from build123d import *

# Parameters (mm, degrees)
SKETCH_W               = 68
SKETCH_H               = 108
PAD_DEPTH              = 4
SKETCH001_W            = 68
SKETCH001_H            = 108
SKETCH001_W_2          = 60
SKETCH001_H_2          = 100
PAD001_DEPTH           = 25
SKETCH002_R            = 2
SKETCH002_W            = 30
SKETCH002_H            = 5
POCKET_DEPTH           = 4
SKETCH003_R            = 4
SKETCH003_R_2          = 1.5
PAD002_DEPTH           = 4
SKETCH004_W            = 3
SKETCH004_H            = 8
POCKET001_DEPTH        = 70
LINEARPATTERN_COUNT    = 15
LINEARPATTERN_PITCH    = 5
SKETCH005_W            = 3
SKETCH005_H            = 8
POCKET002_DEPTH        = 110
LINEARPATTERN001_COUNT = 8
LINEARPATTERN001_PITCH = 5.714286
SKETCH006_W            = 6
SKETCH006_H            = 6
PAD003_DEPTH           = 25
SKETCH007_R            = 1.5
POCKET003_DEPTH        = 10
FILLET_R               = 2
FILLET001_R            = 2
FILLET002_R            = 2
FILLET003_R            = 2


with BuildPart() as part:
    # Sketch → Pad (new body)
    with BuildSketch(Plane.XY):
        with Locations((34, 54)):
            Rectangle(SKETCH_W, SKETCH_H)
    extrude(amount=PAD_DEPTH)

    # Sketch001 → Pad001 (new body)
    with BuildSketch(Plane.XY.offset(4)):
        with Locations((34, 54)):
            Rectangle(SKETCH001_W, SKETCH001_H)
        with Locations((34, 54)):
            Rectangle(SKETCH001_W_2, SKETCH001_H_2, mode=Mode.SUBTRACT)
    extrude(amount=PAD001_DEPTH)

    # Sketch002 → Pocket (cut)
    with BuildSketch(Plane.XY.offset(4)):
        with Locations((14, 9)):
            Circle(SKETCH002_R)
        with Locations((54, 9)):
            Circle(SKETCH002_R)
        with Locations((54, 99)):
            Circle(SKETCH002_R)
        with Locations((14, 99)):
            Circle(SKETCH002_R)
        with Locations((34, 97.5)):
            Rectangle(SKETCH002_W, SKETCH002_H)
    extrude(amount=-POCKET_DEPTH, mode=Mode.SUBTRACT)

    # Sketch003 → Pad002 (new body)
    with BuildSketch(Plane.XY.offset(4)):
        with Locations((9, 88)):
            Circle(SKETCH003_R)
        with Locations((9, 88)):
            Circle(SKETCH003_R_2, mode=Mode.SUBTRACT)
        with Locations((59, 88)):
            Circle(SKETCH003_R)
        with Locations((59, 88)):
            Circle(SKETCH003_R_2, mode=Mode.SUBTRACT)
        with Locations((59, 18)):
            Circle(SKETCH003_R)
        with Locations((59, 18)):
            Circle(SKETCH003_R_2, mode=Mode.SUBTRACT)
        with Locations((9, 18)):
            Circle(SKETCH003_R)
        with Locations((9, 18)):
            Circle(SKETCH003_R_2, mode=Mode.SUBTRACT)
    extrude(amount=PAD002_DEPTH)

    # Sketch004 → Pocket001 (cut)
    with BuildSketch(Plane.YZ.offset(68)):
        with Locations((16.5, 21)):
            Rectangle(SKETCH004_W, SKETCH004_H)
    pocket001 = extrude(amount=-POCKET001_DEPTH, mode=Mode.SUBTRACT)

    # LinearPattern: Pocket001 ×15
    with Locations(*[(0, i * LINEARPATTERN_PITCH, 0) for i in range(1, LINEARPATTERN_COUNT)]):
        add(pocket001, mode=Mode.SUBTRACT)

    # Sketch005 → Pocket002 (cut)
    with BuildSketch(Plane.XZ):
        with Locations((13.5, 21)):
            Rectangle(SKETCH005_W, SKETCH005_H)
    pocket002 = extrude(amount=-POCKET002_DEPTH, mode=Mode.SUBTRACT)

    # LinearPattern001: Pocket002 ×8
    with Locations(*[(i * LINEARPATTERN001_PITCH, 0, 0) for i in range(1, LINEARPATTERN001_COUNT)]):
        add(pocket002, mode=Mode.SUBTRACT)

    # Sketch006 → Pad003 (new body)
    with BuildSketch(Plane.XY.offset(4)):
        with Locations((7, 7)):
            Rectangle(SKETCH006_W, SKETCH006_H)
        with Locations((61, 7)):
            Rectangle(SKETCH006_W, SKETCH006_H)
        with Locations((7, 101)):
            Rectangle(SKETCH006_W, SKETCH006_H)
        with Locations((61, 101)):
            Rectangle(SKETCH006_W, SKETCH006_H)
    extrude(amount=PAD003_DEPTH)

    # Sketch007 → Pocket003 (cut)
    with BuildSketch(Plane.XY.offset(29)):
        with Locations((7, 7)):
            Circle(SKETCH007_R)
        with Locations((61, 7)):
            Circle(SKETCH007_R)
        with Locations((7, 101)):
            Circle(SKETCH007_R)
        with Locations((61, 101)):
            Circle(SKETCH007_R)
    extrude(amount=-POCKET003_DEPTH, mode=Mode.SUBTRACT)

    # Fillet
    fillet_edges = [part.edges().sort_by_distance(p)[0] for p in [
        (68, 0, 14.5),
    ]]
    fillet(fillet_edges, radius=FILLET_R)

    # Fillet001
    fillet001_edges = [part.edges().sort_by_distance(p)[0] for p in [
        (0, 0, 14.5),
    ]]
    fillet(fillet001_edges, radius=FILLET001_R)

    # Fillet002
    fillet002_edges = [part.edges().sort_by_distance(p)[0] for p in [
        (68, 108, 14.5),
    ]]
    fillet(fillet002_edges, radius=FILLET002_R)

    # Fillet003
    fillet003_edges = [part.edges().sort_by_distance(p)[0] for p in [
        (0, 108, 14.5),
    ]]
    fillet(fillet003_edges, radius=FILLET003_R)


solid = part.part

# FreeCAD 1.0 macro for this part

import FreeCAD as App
import Part
import Sketcher
from FreeCAD import Vector


def edges_at(feature, points):
    """Names of the edges that pass closest to the given points."""
    edges = feature.Shape.Edges
    near = lambda p: min(range(len(edges)), key=lambda i: edges[i].distToShape(Part.Vertex(*p))[0])
    return sorted({f"Edge{near(p) + 1}" for p in points})

doc = App.newDocument("Part")
body = doc.addObject("PartDesign::Body", "Body")

sketch1 = doc.addObject("Sketcher::SketchObject", "Sketch")
body.addObject(sketch1)
sketch1.AttachmentSupport = (doc.XY_Plane, [""])
sketch1.MapMode = "FlatFace"
sketch1.addGeometry([
    Part.LineSegment(Vector(0, 108, 0), Vector(0, 0, 0)),
    Part.LineSegment(Vector(0, 0, 0), Vector(68, 0, 0)),
    Part.LineSegment(Vector(68, 0, 0), Vector(68, 108, 0)),
    Part.LineSegment(Vector(68, 108, 0), Vector(0, 108, 0)),
], False)
sketch1.addConstraint([
    Sketcher.Constraint("Coincident", 0, 2, 1, 1),
    Sketcher.Constraint("Coincident", 1, 2, 2, 1),
    Sketcher.Constraint("Coincident", 2, 2, 3, 1),
    Sketcher.Constraint("Coincident", 3, 2, 0, 1),
    Sketcher.Constraint("Vertical", 0),
    Sketcher.Constraint("Horizontal", 1),
    Sketcher.Constraint("Vertical", 2),
    Sketcher.Constraint("Horizontal", 3),
    Sketcher.Constraint("Coincident", 0, 2, -1, 1),
    Sketcher.Constraint("DistanceX", 1, 1, 1, 2, 68.0),
    Sketcher.Constraint("DistanceY", 0, 2, 0, 1, 108.0),
])
pad1 = doc.addObject("PartDesign::Pad", "Pad")
body.addObject(pad1)
pad1.Profile = sketch1
pad1.Length = 4

sketch2 = doc.addObject("Sketcher::SketchObject", "Sketch001")
body.addObject(sketch2)
sketch2.AttachmentSupport = (doc.XY_Plane, [""])
sketch2.MapMode = "FlatFace"
sketch2.AttachmentOffset = App.Placement(Vector(0, 0, 4), App.Rotation())
sketch2.addGeometry([
    Part.LineSegment(Vector(0, 108, 0), Vector(0, 0, 0)),
    Part.LineSegment(Vector(0, 0, 0), Vector(68, 0, 0)),
    Part.LineSegment(Vector(68, 0, 0), Vector(68, 108, 0)),
    Part.LineSegment(Vector(68, 108, 0), Vector(0, 108, 0)),
    Part.LineSegment(Vector(64, 4, 0), Vector(4, 4, 0)),
    Part.LineSegment(Vector(4, 4, 0), Vector(4, 104, 0)),
    Part.LineSegment(Vector(4, 104, 0), Vector(64, 104, 0)),
    Part.LineSegment(Vector(64, 104, 0), Vector(64, 4, 0)),
], False)
sketch2.addConstraint([
    Sketcher.Constraint("Coincident", 0, 2, 1, 1),
    Sketcher.Constraint("Coincident", 1, 2, 2, 1),
    Sketcher.Constraint("Coincident", 2, 2, 3, 1),
    Sketcher.Constraint("Coincident", 3, 2, 0, 1),
    Sketcher.Constraint("Coincident", 4, 2, 5, 1),
    Sketcher.Constraint("Coincident", 5, 2, 6, 1),
    Sketcher.Constraint("Coincident", 6, 2, 7, 1),
    Sketcher.Constraint("Coincident", 7, 2, 4, 1),
    Sketcher.Constraint("Vertical", 0),
    Sketcher.Constraint("Horizontal", 1),
    Sketcher.Constraint("Vertical", 2),
    Sketcher.Constraint("Horizontal", 3),
    Sketcher.Constraint("Horizontal", 4),
    Sketcher.Constraint("Vertical", 5),
    Sketcher.Constraint("Horizontal", 6),
    Sketcher.Constraint("Vertical", 7),
    Sketcher.Constraint("Coincident", 0, 2, -1, 1),
    Sketcher.Constraint("DistanceX", 1, 1, 1, 2, 68.0),
    Sketcher.Constraint("DistanceX", 4, 2, 4, 1, 60.0),
    Sketcher.Constraint("DistanceY", 0, 2, 0, 1, 108.0),
    Sketcher.Constraint("DistanceY", 5, 1, 5, 2, 100.0),
    Sketcher.Constraint("DistanceX", -1, 1, 4, 2, 4.0),
    Sketcher.Constraint("DistanceY", -1, 1, 4, 2, 4.0),
])
pad2 = doc.addObject("PartDesign::Pad", "Pad001")
body.addObject(pad2)
pad2.Profile = sketch2
pad2.Length = 25

sketch3 = doc.addObject("Sketcher::SketchObject", "Sketch002")
body.addObject(sketch3)
sketch3.AttachmentSupport = (doc.XY_Plane, [""])
sketch3.MapMode = "FlatFace"
sketch3.AttachmentOffset = App.Placement(Vector(0, 0, 4), App.Rotation())
sketch3.addGeometry([
    Part.Circle(Vector(14, 9, 0), Vector(0, 0, 1), 2),
    Part.Circle(Vector(54, 9, 0), Vector(0, 0, 1), 2),
    Part.Circle(Vector(54, 99, 0), Vector(0, 0, 1), 2),
    Part.Circle(Vector(14, 99, 0), Vector(0, 0, 1), 2),
    Part.LineSegment(Vector(19, 100, 0), Vector(19, 95, 0)),
    Part.LineSegment(Vector(19, 95, 0), Vector(49, 95, 0)),
    Part.LineSegment(Vector(49, 95, 0), Vector(49, 100, 0)),
    Part.LineSegment(Vector(49, 100, 0), Vector(19, 100, 0)),
], False)
sketch3.addConstraint([
    Sketcher.Constraint("Coincident", 4, 2, 5, 1),
    Sketcher.Constraint("Coincident", 5, 2, 6, 1),
    Sketcher.Constraint("Coincident", 6, 2, 7, 1),
    Sketcher.Constraint("Coincident", 7, 2, 4, 1),
    Sketcher.Constraint("Vertical", 4),
    Sketcher.Constraint("Horizontal", 5),
    Sketcher.Constraint("Vertical", 6),
    Sketcher.Constraint("Horizontal", 7),
    Sketcher.Constraint("Equal", 0, 1),
    Sketcher.Constraint("Equal", 1, 2),
    Sketcher.Constraint("Equal", 2, 3),
    Sketcher.Constraint("Horizontal", 0, 3, 1, 3),
    Sketcher.Constraint("Horizontal", 2, 3, 3, 3),
    Sketcher.Constraint("Vertical", 1, 3, 2, 3),
    Sketcher.Constraint("Vertical", 0, 3, 3, 3),
    Sketcher.Constraint("Diameter", 0, 4.0),
    Sketcher.Constraint("DistanceX", 5, 1, 5, 2, 30.0),
    Sketcher.Constraint("DistanceY", 4, 2, 4, 1, 5.0),
    Sketcher.Constraint("DistanceX", -1, 1, 0, 3, 14.0),
    Sketcher.Constraint("DistanceY", -1, 1, 0, 3, 9.0),
    Sketcher.Constraint("DistanceX", -1, 1, 1, 3, 54.0),
    Sketcher.Constraint("DistanceY", -1, 1, 2, 3, 99.0),
    Sketcher.Constraint("DistanceX", -1, 1, 4, 2, 19.0),
    Sketcher.Constraint("DistanceY", -1, 1, 4, 2, 95.0),
])
pocket1 = doc.addObject("PartDesign::Pocket", "Pocket")
body.addObject(pocket1)
pocket1.Profile = sketch3
pocket1.Length = 4

sketch4 = doc.addObject("Sketcher::SketchObject", "Sketch003")
body.addObject(sketch4)
sketch4.AttachmentSupport = (doc.XY_Plane, [""])
sketch4.MapMode = "FlatFace"
sketch4.AttachmentOffset = App.Placement(Vector(0, 0, 4), App.Rotation())
sketch4.addGeometry([
    Part.Circle(Vector(9, 88, 0), Vector(0, 0, 1), 4),
    Part.Circle(Vector(9, 88, 0), Vector(0, 0, 1), 1.5),
    Part.Circle(Vector(59, 88, 0), Vector(0, 0, 1), 4),
    Part.Circle(Vector(59, 88, 0), Vector(0, 0, 1), 1.5),
    Part.Circle(Vector(59, 18, 0), Vector(0, 0, 1), 4),
    Part.Circle(Vector(59, 18, 0), Vector(0, 0, 1), 1.5),
    Part.Circle(Vector(9, 18, 0), Vector(0, 0, 1), 4),
    Part.Circle(Vector(9, 18, 0), Vector(0, 0, 1), 1.5),
], False)
sketch4.addConstraint([
    Sketcher.Constraint("Coincident", 1, 3, 0, 3),
    Sketcher.Constraint("Coincident", 3, 3, 2, 3),
    Sketcher.Constraint("Coincident", 5, 3, 4, 3),
    Sketcher.Constraint("Coincident", 7, 3, 6, 3),
    Sketcher.Constraint("Equal", 0, 2),
    Sketcher.Constraint("Equal", 1, 3),
    Sketcher.Constraint("Equal", 2, 4),
    Sketcher.Constraint("Equal", 3, 5),
    Sketcher.Constraint("Equal", 4, 6),
    Sketcher.Constraint("Equal", 5, 7),
    Sketcher.Constraint("Horizontal", 1, 3, 2, 3),
    Sketcher.Constraint("Horizontal", 5, 3, 6, 3),
    Sketcher.Constraint("Vertical", 3, 3, 4, 3),
    Sketcher.Constraint("Vertical", 1, 3, 6, 3),
    Sketcher.Constraint("Diameter", 0, 8.0),
    Sketcher.Constraint("Diameter", 1, 3.0),
    Sketcher.Constraint("DistanceX", -1, 1, 0, 3, 9.0),
    Sketcher.Constraint("DistanceY", -1, 1, 0, 3, 88.0),
    Sketcher.Constraint("DistanceX", -1, 1, 2, 3, 59.0),
    Sketcher.Constraint("DistanceY", -1, 1, 4, 3, 18.0),
])
pad3 = doc.addObject("PartDesign::Pad", "Pad002")
body.addObject(pad3)
pad3.Profile = sketch4
pad3.Length = 4

sketch5 = doc.addObject("Sketcher::SketchObject", "Sketch004")
body.addObject(sketch5)
sketch5.AttachmentSupport = (doc.YZ_Plane, [""])
sketch5.MapMode = "FlatFace"
sketch5.AttachmentOffset = App.Placement(Vector(0, 0, 68), App.Rotation())
sketch5.addGeometry([
    Part.LineSegment(Vector(15, 25, 0), Vector(15, 17, 0)),
    Part.LineSegment(Vector(15, 17, 0), Vector(18, 17, 0)),
    Part.LineSegment(Vector(18, 17, 0), Vector(18, 25, 0)),
    Part.LineSegment(Vector(18, 25, 0), Vector(15, 25, 0)),
], False)
sketch5.addConstraint([
    Sketcher.Constraint("Coincident", 0, 2, 1, 1),
    Sketcher.Constraint("Coincident", 1, 2, 2, 1),
    Sketcher.Constraint("Coincident", 2, 2, 3, 1),
    Sketcher.Constraint("Coincident", 3, 2, 0, 1),
    Sketcher.Constraint("Vertical", 0),
    Sketcher.Constraint("Horizontal", 1),
    Sketcher.Constraint("Vertical", 2),
    Sketcher.Constraint("Horizontal", 3),
    Sketcher.Constraint("DistanceX", 1, 1, 1, 2, 3.0),
    Sketcher.Constraint("DistanceY", 0, 2, 0, 1, 8.0),
    Sketcher.Constraint("DistanceX", -1, 1, 0, 2, 15.0),
    Sketcher.Constraint("DistanceY", -1, 1, 0, 2, 17.0),
])
pocket2 = doc.addObject("PartDesign::Pocket", "Pocket001")
body.addObject(pocket2)
pocket2.Profile = sketch5
pocket2.Length = 70
doc.recompute()

linearpattern = doc.addObject("PartDesign::LinearPattern", "LinearPattern")
body.addObject(linearpattern)
linearpattern.Originals = [pocket2]
linearpattern.Direction = (doc.Y_Axis, [""])
linearpattern.Mode = "offset"
linearpattern.Offset = 5
linearpattern.Occurrences = 15
body.Tip = linearpattern

sketch6 = doc.addObject("Sketcher::SketchObject", "Sketch005")
body.addObject(sketch6)
sketch6.AttachmentSupport = (doc.XZ_Plane, [""])
sketch6.MapMode = "FlatFace"
sketch6.addGeometry([
    Part.LineSegment(Vector(12, 25, 0), Vector(12, 17, 0)),
    Part.LineSegment(Vector(12, 17, 0), Vector(15, 17, 0)),
    Part.LineSegment(Vector(15, 17, 0), Vector(15, 25, 0)),
    Part.LineSegment(Vector(15, 25, 0), Vector(12, 25, 0)),
], False)
sketch6.addConstraint([
    Sketcher.Constraint("Coincident", 0, 2, 1, 1),
    Sketcher.Constraint("Coincident", 1, 2, 2, 1),
    Sketcher.Constraint("Coincident", 2, 2, 3, 1),
    Sketcher.Constraint("Coincident", 3, 2, 0, 1),
    Sketcher.Constraint("Vertical", 0),
    Sketcher.Constraint("Horizontal", 1),
    Sketcher.Constraint("Vertical", 2),
    Sketcher.Constraint("Horizontal", 3),
    Sketcher.Constraint("DistanceX", 1, 1, 1, 2, 3.0),
    Sketcher.Constraint("DistanceY", 0, 2, 0, 1, 8.0),
    Sketcher.Constraint("DistanceX", -1, 1, 0, 2, 12.0),
    Sketcher.Constraint("DistanceY", -1, 1, 0, 2, 17.0),
])
pocket3 = doc.addObject("PartDesign::Pocket", "Pocket002")
body.addObject(pocket3)
pocket3.Profile = sketch6
pocket3.Length = 110
doc.recompute()

linearpattern2 = doc.addObject("PartDesign::LinearPattern", "LinearPattern001")
body.addObject(linearpattern2)
linearpattern2.Originals = [pocket3]
linearpattern2.Direction = (doc.X_Axis, [""])
linearpattern2.Mode = "offset"
linearpattern2.Offset = 5.714286
linearpattern2.Occurrences = 8
body.Tip = linearpattern2

sketch7 = doc.addObject("Sketcher::SketchObject", "Sketch006")
body.addObject(sketch7)
sketch7.AttachmentSupport = (doc.XY_Plane, [""])
sketch7.MapMode = "FlatFace"
sketch7.AttachmentOffset = App.Placement(Vector(0, 0, 4), App.Rotation())
sketch7.addGeometry([
    Part.LineSegment(Vector(4, 10, 0), Vector(4, 4, 0)),
    Part.LineSegment(Vector(4, 4, 0), Vector(10, 4, 0)),
    Part.LineSegment(Vector(10, 4, 0), Vector(10, 10, 0)),
    Part.LineSegment(Vector(10, 10, 0), Vector(4, 10, 0)),
    Part.LineSegment(Vector(58, 10, 0), Vector(58, 4, 0)),
    Part.LineSegment(Vector(58, 4, 0), Vector(64, 4, 0)),
    Part.LineSegment(Vector(64, 4, 0), Vector(64, 10, 0)),
    Part.LineSegment(Vector(64, 10, 0), Vector(58, 10, 0)),
    Part.LineSegment(Vector(4, 104, 0), Vector(4, 98, 0)),
    Part.LineSegment(Vector(4, 98, 0), Vector(10, 98, 0)),
    Part.LineSegment(Vector(10, 98, 0), Vector(10, 104, 0)),
    Part.LineSegment(Vector(10, 104, 0), Vector(4, 104, 0)),
    Part.LineSegment(Vector(58, 104, 0), Vector(58, 98, 0)),
    Part.LineSegment(Vector(58, 98, 0), Vector(64, 98, 0)),
    Part.LineSegment(Vector(64, 98, 0), Vector(64, 104, 0)),
    Part.LineSegment(Vector(64, 104, 0), Vector(58, 104, 0)),
], False)
sketch7.addConstraint([
    Sketcher.Constraint("Coincident", 0, 2, 1, 1),
    Sketcher.Constraint("Coincident", 1, 2, 2, 1),
    Sketcher.Constraint("Coincident", 2, 2, 3, 1),
    Sketcher.Constraint("Coincident", 3, 2, 0, 1),
    Sketcher.Constraint("Coincident", 4, 2, 5, 1),
    Sketcher.Constraint("Coincident", 5, 2, 6, 1),
    Sketcher.Constraint("Coincident", 6, 2, 7, 1),
    Sketcher.Constraint("Coincident", 7, 2, 4, 1),
    Sketcher.Constraint("Coincident", 8, 2, 9, 1),
    Sketcher.Constraint("Coincident", 9, 2, 10, 1),
    Sketcher.Constraint("Coincident", 10, 2, 11, 1),
    Sketcher.Constraint("Coincident", 11, 2, 8, 1),
    Sketcher.Constraint("Coincident", 12, 2, 13, 1),
    Sketcher.Constraint("Coincident", 13, 2, 14, 1),
    Sketcher.Constraint("Coincident", 14, 2, 15, 1),
    Sketcher.Constraint("Coincident", 15, 2, 12, 1),
    Sketcher.Constraint("Vertical", 0),
    Sketcher.Constraint("Horizontal", 1),
    Sketcher.Constraint("Vertical", 2),
    Sketcher.Constraint("Horizontal", 3),
    Sketcher.Constraint("Vertical", 4),
    Sketcher.Constraint("Horizontal", 5),
    Sketcher.Constraint("Vertical", 6),
    Sketcher.Constraint("Horizontal", 7),
    Sketcher.Constraint("Vertical", 8),
    Sketcher.Constraint("Horizontal", 9),
    Sketcher.Constraint("Vertical", 10),
    Sketcher.Constraint("Horizontal", 11),
    Sketcher.Constraint("Vertical", 12),
    Sketcher.Constraint("Horizontal", 13),
    Sketcher.Constraint("Vertical", 14),
    Sketcher.Constraint("Horizontal", 15),
    Sketcher.Constraint("Horizontal", 1, 2, 4, 2),
    Sketcher.Constraint("Horizontal", 3, 2, 6, 2),
    Sketcher.Constraint("Horizontal", 9, 2, 12, 2),
    Sketcher.Constraint("Horizontal", 11, 2, 14, 2),
    Sketcher.Constraint("Vertical", 3, 2, 8, 2),
    Sketcher.Constraint("Vertical", 2, 2, 9, 2),
    Sketcher.Constraint("Vertical", 7, 2, 12, 2),
    Sketcher.Constraint("Vertical", 6, 2, 13, 2),
    Sketcher.Constraint("Equal", 3, 5),
    Sketcher.Constraint("Equal", 15, 0),
    Sketcher.Constraint("Equal", 6, 8),
    Sketcher.Constraint("DistanceX", 1, 1, 1, 2, 6.0),
    Sketcher.Constraint("DistanceX", -1, 1, 0, 2, 4.0),
    Sketcher.Constraint("DistanceY", -1, 1, 0, 2, 4.0),
    Sketcher.Constraint("DistanceX", -1, 1, 4, 2, 58.0),
    Sketcher.Constraint("DistanceY", -1, 1, 8, 2, 98.0),
])
pad4 = doc.addObject("PartDesign::Pad", "Pad003")
body.addObject(pad4)
pad4.Profile = sketch7
pad4.Length = 25

sketch8 = doc.addObject("Sketcher::SketchObject", "Sketch007")
body.addObject(sketch8)
sketch8.AttachmentSupport = (doc.XY_Plane, [""])
sketch8.MapMode = "FlatFace"
sketch8.AttachmentOffset = App.Placement(Vector(0, 0, 29), App.Rotation())
sketch8.addGeometry([
    Part.Circle(Vector(7, 7, 0), Vector(0, 0, 1), 1.5),
    Part.Circle(Vector(61, 7, 0), Vector(0, 0, 1), 1.5),
    Part.Circle(Vector(7, 101, 0), Vector(0, 0, 1), 1.5),
    Part.Circle(Vector(61, 101, 0), Vector(0, 0, 1), 1.5),
], False)
sketch8.addConstraint([
    Sketcher.Constraint("Equal", 0, 1),
    Sketcher.Constraint("Equal", 1, 2),
    Sketcher.Constraint("Equal", 2, 3),
    Sketcher.Constraint("Horizontal", 0, 3, 1, 3),
    Sketcher.Constraint("Horizontal", 2, 3, 3, 3),
    Sketcher.Constraint("Vertical", 0, 3, 2, 3),
    Sketcher.Constraint("Vertical", 1, 3, 3, 3),
    Sketcher.Constraint("Diameter", 0, 3.0),
    Sketcher.Constraint("DistanceX", -1, 1, 0, 3, 7.0),
    Sketcher.Constraint("DistanceY", -1, 1, 0, 3, 7.0),
    Sketcher.Constraint("DistanceX", -1, 1, 1, 3, 61.0),
    Sketcher.Constraint("DistanceY", -1, 1, 2, 3, 101.0),
])
pocket4 = doc.addObject("PartDesign::Pocket", "Pocket003")
body.addObject(pocket4)
pocket4.Profile = sketch8
pocket4.Length = 10
doc.recompute()

fillet = doc.addObject("PartDesign::Fillet", "Fillet")
body.addObject(fillet)
fillet.Base = (pocket4, edges_at(pocket4, [(68, 0, 14.5)]))
fillet.Radius = 2
doc.recompute()

fillet2 = doc.addObject("PartDesign::Fillet", "Fillet001")
body.addObject(fillet2)
fillet2.Base = (fillet, edges_at(fillet, [(0, 0, 14.5)]))
fillet2.Radius = 2
doc.recompute()

fillet3 = doc.addObject("PartDesign::Fillet", "Fillet002")
body.addObject(fillet3)
fillet3.Base = (fillet2, edges_at(fillet2, [(68, 108, 14.5)]))
fillet3.Radius = 2
doc.recompute()

fillet4 = doc.addObject("PartDesign::Fillet", "Fillet003")
body.addObject(fillet4)
fillet4.Base = (fillet3, edges_at(fillet3, [(0, 108, 14.5)]))
fillet4.Radius = 2

doc.recompute()
